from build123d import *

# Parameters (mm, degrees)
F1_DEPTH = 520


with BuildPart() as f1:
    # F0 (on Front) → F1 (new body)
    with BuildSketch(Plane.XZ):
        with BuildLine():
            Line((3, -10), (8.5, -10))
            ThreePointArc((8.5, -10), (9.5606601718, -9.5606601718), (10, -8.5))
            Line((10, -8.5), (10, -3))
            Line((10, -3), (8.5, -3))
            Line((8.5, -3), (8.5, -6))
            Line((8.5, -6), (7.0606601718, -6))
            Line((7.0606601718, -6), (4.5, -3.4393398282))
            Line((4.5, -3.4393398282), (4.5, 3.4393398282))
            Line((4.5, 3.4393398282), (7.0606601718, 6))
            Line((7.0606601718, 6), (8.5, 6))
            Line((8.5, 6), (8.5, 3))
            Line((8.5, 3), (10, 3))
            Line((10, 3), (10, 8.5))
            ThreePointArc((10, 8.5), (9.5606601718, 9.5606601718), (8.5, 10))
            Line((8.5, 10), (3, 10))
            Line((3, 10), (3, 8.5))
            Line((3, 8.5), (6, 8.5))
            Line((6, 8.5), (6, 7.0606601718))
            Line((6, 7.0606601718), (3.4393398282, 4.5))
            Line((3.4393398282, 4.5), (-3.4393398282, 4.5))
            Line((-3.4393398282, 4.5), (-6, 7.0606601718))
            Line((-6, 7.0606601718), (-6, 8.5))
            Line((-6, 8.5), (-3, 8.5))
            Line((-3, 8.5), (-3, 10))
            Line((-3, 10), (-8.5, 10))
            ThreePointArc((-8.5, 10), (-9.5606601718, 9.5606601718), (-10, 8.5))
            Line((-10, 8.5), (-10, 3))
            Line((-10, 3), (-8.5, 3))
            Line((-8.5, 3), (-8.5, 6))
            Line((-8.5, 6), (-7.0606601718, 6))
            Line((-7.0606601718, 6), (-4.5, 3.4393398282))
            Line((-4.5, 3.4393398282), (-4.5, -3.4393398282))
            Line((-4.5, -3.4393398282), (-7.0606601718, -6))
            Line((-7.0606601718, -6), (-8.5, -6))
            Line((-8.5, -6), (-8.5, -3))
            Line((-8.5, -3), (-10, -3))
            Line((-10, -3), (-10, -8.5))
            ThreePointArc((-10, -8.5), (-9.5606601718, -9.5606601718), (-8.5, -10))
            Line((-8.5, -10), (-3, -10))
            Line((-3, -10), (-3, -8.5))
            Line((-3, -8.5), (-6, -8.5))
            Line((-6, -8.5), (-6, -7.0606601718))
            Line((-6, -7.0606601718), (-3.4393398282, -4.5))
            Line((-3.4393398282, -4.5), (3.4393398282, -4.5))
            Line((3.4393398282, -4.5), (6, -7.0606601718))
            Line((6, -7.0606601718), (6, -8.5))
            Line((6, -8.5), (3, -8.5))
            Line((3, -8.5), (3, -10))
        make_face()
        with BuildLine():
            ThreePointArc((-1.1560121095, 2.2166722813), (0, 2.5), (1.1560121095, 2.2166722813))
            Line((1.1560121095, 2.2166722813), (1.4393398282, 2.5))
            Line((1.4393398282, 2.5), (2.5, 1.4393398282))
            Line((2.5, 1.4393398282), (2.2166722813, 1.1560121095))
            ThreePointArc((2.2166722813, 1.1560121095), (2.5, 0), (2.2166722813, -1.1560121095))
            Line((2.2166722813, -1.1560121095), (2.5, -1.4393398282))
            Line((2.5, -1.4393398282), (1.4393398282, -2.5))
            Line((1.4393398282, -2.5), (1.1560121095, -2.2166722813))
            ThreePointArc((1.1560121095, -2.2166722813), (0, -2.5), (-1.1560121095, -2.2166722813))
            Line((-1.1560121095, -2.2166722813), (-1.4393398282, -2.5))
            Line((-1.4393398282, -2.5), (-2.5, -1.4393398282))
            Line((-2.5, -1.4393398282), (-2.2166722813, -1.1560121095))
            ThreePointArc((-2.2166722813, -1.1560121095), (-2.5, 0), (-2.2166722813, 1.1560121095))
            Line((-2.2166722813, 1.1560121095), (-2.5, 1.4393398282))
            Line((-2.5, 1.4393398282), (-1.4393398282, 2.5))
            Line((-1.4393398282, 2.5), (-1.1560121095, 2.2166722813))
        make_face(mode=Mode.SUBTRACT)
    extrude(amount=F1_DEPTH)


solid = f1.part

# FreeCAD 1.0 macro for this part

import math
import FreeCAD as App
import Part
import Sketcher

V = App.Vector
Q = App.Units.Quantity

doc = App.newDocument("Part")
body = doc.addObject("PartDesign::Body", "Body")

sketch1 = body.newObject("Sketcher::SketchObject", "Sketch")
sketch1.AttachmentSupport = (doc.getObject("XZ_Plane"), [""])
sketch1.MapMode = "FlatFace"
sketch1.addGeometry(Part.LineSegment(V(3, -10, 0), V(8.5, -10, 0)), False)
sketch1.addGeometry(Part.ArcOfCircle(Part.Circle(V(8.5, -8.5, 0), V(0, 0, 1), 1.5), math.radians(-90), math.radians(0)), False)
sketch1.addGeometry(Part.LineSegment(V(10, -8.5, 0), V(10, -3, 0)), False)
sketch1.addGeometry(Part.LineSegment(V(10, -3, 0), V(8.5, -3, 0)), False)
sketch1.addGeometry(Part.LineSegment(V(8.5, -3, 0), V(8.5, -6, 0)), False)
sketch1.addGeometry(Part.LineSegment(V(8.5, -6, 0), V(7.06, -6, 0)), False)
sketch1.addGeometry(Part.LineSegment(V(7.06, -6, 0), V(4.5, -3.44, 0)), False)
sketch1.addGeometry(Part.LineSegment(V(4.5, -3.44, 0), V(4.5, 3.44, 0)), False)
sketch1.addGeometry(Part.LineSegment(V(4.5, 3.44, 0), V(7.06, 6, 0)), False)
sketch1.addGeometry(Part.LineSegment(V(7.06, 6, 0), V(8.5, 6, 0)), False)
sketch1.addGeometry(Part.LineSegment(V(8.5, 6, 0), V(8.5, 3, 0)), False)
sketch1.addGeometry(Part.LineSegment(V(8.5, 3, 0), V(10, 3, 0)), False)
sketch1.addGeometry(Part.LineSegment(V(10, 3, 0), V(10, 8.5, 0)), False)
sketch1.addGeometry(Part.ArcOfCircle(Part.Circle(V(8.5, 8.5, 0), V(0, 0, 1), 1.5), math.radians(0), math.radians(90)), False)
sketch1.addGeometry(Part.LineSegment(V(8.5, 10, 0), V(3, 10, 0)), False)
sketch1.addGeometry(Part.LineSegment(V(3, 10, 0), V(3, 8.5, 0)), False)
sketch1.addGeometry(Part.LineSegment(V(3, 8.5, 0), V(6, 8.5, 0)), False)
sketch1.addGeometry(Part.LineSegment(V(6, 8.5, 0), V(6, 7.06, 0)), False)
sketch1.addGeometry(Part.LineSegment(V(6, 7.06, 0), V(3.44, 4.5, 0)), False)
sketch1.addGeometry(Part.LineSegment(V(3.44, 4.5, 0), V(-3.44, 4.5, 0)), False)
sketch1.addGeometry(Part.LineSegment(V(-3.44, 4.5, 0), V(-6, 7.06, 0)), False)
sketch1.addGeometry(Part.LineSegment(V(-6, 7.06, 0), V(-6, 8.5, 0)), False)
sketch1.addGeometry(Part.LineSegment(V(-6, 8.5, 0), V(-3, 8.5, 0)), False)
sketch1.addGeometry(Part.LineSegment(V(-3, 8.5, 0), V(-3, 10, 0)), False)
sketch1.addGeometry(Part.LineSegment(V(-3, 10, 0), V(-8.5, 10, 0)), False)
sketch1.addGeometry(Part.ArcOfCircle(Part.Circle(V(-8.5, 8.5, 0), V(0, 0, 1), 1.5), math.radians(90), math.radians(180)), False)
sketch1.addGeometry(Part.LineSegment(V(-10, 8.5, 0), V(-10, 3, 0)), False)
sketch1.addGeometry(Part.LineSegment(V(-10, 3, 0), V(-8.5, 3, 0)), False)
sketch1.addGeometry(Part.LineSegment(V(-8.5, 3, 0), V(-8.5, 6, 0)), False)
sketch1.addGeometry(Part.LineSegment(V(-8.5, 6, 0), V(-7.06, 6, 0)), False)
sketch1.addGeometry(Part.LineSegment(V(-7.06, 6, 0), V(-4.5, 3.44, 0)), False)
sketch1.addGeometry(Part.LineSegment(V(-4.5, 3.44, 0), V(-4.5, -3.44, 0)), False)
sketch1.addGeometry(Part.LineSegment(V(-4.5, -3.44, 0), V(-7.06, -6, 0)), False)
sketch1.addGeometry(Part.LineSegment(V(-7.06, -6, 0), V(-8.5, -6, 0)), False)
sketch1.addGeometry(Part.LineSegment(V(-8.5, -6, 0), V(-8.5, -3, 0)), False)
sketch1.addGeometry(Part.LineSegment(V(-8.5, -3, 0), V(-10, -3, 0)), False)
sketch1.addGeometry(Part.LineSegment(V(-10, -3, 0), V(-10, -8.5, 0)), False)
sketch1.addGeometry(Part.ArcOfCircle(Part.Circle(V(-8.5, -8.5, 0), V(0, 0, 1), 1.5), math.radians(180), math.radians(270)), False)
sketch1.addGeometry(Part.LineSegment(V(-8.5, -10, 0), V(-3, -10, 0)), False)
sketch1.addGeometry(Part.LineSegment(V(-3, -10, 0), V(-3, -8.5, 0)), False)
sketch1.addGeometry(Part.LineSegment(V(-3, -8.5, 0), V(-6, -8.5, 0)), False)
sketch1.addGeometry(Part.LineSegment(V(-6, -8.5, 0), V(-6, -7.06, 0)), False)
sketch1.addGeometry(Part.LineSegment(V(-6, -7.06, 0), V(-3.44, -4.5, 0)), False)
sketch1.addGeometry(Part.LineSegment(V(-3.44, -4.5, 0), V(3.44, -4.5, 0)), False)
sketch1.addGeometry(Part.LineSegment(V(3.44, -4.5, 0), V(6, -7.06, 0)), False)
sketch1.addGeometry(Part.LineSegment(V(6, -7.06, 0), V(6, -8.5, 0)), False)
sketch1.addGeometry(Part.LineSegment(V(6, -8.5, 0), V(3, -8.5, 0)), False)
sketch1.addGeometry(Part.LineSegment(V(3, -8.5, 0), V(3, -10, 0)), False)
sketch1.addGeometry(Part.LineSegment(V(-1.44, 2.5, 0), V(-1.16, 2.22, 0)), False)
sketch1.addGeometry(Part.ArcOfCircle(Part.Circle(V(0, 0, 0), V(0, 0, 1), 2.5), math.radians(62), math.radians(118)), False)
sketch1.addGeometry(Part.LineSegment(V(1.16, 2.22, 0), V(1.44, 2.5, 0)), False)
sketch1.addGeometry(Part.LineSegment(V(1.44, 2.5, 0), V(2.5, 1.44, 0)), False)
sketch1.addGeometry(Part.LineSegment(V(2.5, 1.44, 0), V(2.22, 1.16, 0)), False)
sketch1.addGeometry(Part.ArcOfCircle(Part.Circle(V(0, 0, 0), V(0, 0, 1), 2.5), math.radians(-28), math.radians(28)), False)
sketch1.addGeometry(Part.LineSegment(V(2.22, -1.16, 0), V(2.5, -1.44, 0)), False)
sketch1.addGeometry(Part.LineSegment(V(2.5, -1.44, 0), V(1.44, -2.5, 0)), False)
sketch1.addGeometry(Part.LineSegment(V(1.44, -2.5, 0), V(1.16, -2.22, 0)), False)
sketch1.addGeometry(Part.ArcOfCircle(Part.Circle(V(0, 0, 0), V(0, 0, 1), 2.5), math.radians(-118), math.radians(-62)), False)
sketch1.addGeometry(Part.LineSegment(V(-1.16, -2.22, 0), V(-1.44, -2.5, 0)), False)
sketch1.addGeometry(Part.LineSegment(V(-1.44, -2.5, 0), V(-2.5, -1.44, 0)), False)
sketch1.addGeometry(Part.LineSegment(V(-2.5, -1.44, 0), V(-2.22, -1.16, 0)), False)
sketch1.addGeometry(Part.ArcOfCircle(Part.Circle(V(0, 0, 0), V(0, 0, 1), 2.5), math.radians(152), math.radians(208)), False)
sketch1.addGeometry(Part.LineSegment(V(-2.22, 1.16, 0), V(-2.5, 1.44, 0)), False)
sketch1.addGeometry(Part.LineSegment(V(-2.5, 1.44, 0), V(-1.44, 2.5, 0)), False)
sketch1.addConstraint(Sketcher.Constraint("Tangent", 0, 2, 1, 1))
sketch1.addConstraint(Sketcher.Constraint("Tangent", 1, 2, 2, 1))
sketch1.addConstraint(Sketcher.Constraint("Coincident", 2, 2, 3, 1))
sketch1.addConstraint(Sketcher.Constraint("Coincident", 3, 2, 4, 1))
sketch1.addConstraint(Sketcher.Constraint("Coincident", 4, 2, 5, 1))
sketch1.addConstraint(Sketcher.Constraint("Coincident", 5, 2, 6, 1))
sketch1.addConstraint(Sketcher.Constraint("Coincident", 6, 2, 7, 1))
sketch1.addConstraint(Sketcher.Constraint("Coincident", 7, 2, 8, 1))
sketch1.addConstraint(Sketcher.Constraint("Coincident", 8, 2, 9, 1))
sketch1.addConstraint(Sketcher.Constraint("Coincident", 9, 2, 10, 1))
sketch1.addConstraint(Sketcher.Constraint("Coincident", 10, 2, 11, 1))
sketch1.addConstraint(Sketcher.Constraint("Coincident", 11, 2, 12, 1))
sketch1.addConstraint(Sketcher.Constraint("Tangent", 12, 2, 13, 1))
sketch1.addConstraint(Sketcher.Constraint("Tangent", 13, 2, 14, 1))
sketch1.addConstraint(Sketcher.Constraint("Coincident", 14, 2, 15, 1))
sketch1.addConstraint(Sketcher.Constraint("Coincident", 15, 2, 16, 1))
sketch1.addConstraint(Sketcher.Constraint("Coincident", 16, 2, 17, 1))
sketch1.addConstraint(Sketcher.Constraint("Coincident", 17, 2, 18, 1))
sketch1.addConstraint(Sketcher.Constraint("Coincident", 18, 2, 19, 1))
sketch1.addConstraint(Sketcher.Constraint("Coincident", 19, 2, 20, 1))
sketch1.addConstraint(Sketcher.Constraint("Coincident", 20, 2, 21, 1))
sketch1.addConstraint(Sketcher.Constraint("Coincident", 21, 2, 22, 1))
sketch1.addConstraint(Sketcher.Constraint("Coincident", 22, 2, 23, 1))
sketch1.addConstraint(Sketcher.Constraint("Coincident", 23, 2, 24, 1))
sketch1.addConstraint(Sketcher.Constraint("Tangent", 24, 2, 25, 1))
sketch1.addConstraint(Sketcher.Constraint("Tangent", 25, 2, 26, 1))
sketch1.addConstraint(Sketcher.Constraint("Coincident", 26, 2, 27, 1))
sketch1.addConstraint(Sketcher.Constraint("Coincident", 27, 2, 28, 1))
sketch1.addConstraint(Sketcher.Constraint("Coincident", 28, 2, 29, 1))
sketch1.addConstraint(Sketcher.Constraint("Coincident", 29, 2, 30, 1))
sketch1.addConstraint(Sketcher.Constraint("Coincident", 30, 2, 31, 1))
sketch1.addConstraint(Sketcher.Constraint("Coincident", 31, 2, 32, 1))
sketch1.addConstraint(Sketcher.Constraint("Coincident", 32, 2, 33, 1))
sketch1.addConstraint(Sketcher.Constraint("Coincident", 33, 2, 34, 1))
sketch1.addConstraint(Sketcher.Constraint("Coincident", 34, 2, 35, 1))
sketch1.addConstraint(Sketcher.Constraint("Coincident", 35, 2, 36, 1))
sketch1.addConstraint(Sketcher.Constraint("Tangent", 36, 2, 37, 1))
sketch1.addConstraint(Sketcher.Constraint("Tangent", 37, 2, 38, 1))
sketch1.addConstraint(Sketcher.Constraint("Coincident", 38, 2, 39, 1))
sketch1.addConstraint(Sketcher.Constraint("Coincident", 39, 2, 40, 1))
sketch1.addConstraint(Sketcher.Constraint("Coincident", 40, 2, 41, 1))
sketch1.addConstraint(Sketcher.Constraint("Coincident", 41, 2, 42, 1))
sketch1.addConstraint(Sketcher.Constraint("Coincident", 42, 2, 43, 1))
sketch1.addConstraint(Sketcher.Constraint("Coincident", 43, 2, 44, 1))
sketch1.addConstraint(Sketcher.Constraint("Coincident", 44, 2, 45, 1))
sketch1.addConstraint(Sketcher.Constraint("Coincident", 45, 2, 46, 1))
sketch1.addConstraint(Sketcher.Constraint("Coincident", 46, 2, 47, 1))
sketch1.addConstraint(Sketcher.Constraint("Coincident", 47, 2, 0, 1))
sketch1.addConstraint(Sketcher.Constraint("Coincident", 48, 2, 49, 2))
sketch1.addConstraint(Sketcher.Constraint("Coincident", 49, 1, 50, 1))
sketch1.addConstraint(Sketcher.Constraint("Coincident", 50, 2, 51, 1))
sketch1.addConstraint(Sketcher.Constraint("Coincident", 51, 2, 52, 1))
sketch1.addConstraint(Sketcher.Constraint("Coincident", 52, 2, 53, 2))
sketch1.addConstraint(Sketcher.Constraint("Coincident", 53, 1, 54, 1))
sketch1.addConstraint(Sketcher.Constraint("Coincident", 54, 2, 55, 1))
sketch1.addConstraint(Sketcher.Constraint("Coincident", 55, 2, 56, 1))
sketch1.addConstraint(Sketcher.Constraint("Coincident", 56, 2, 57, 2))
sketch1.addConstraint(Sketcher.Constraint("Coincident", 57, 1, 58, 1))
sketch1.addConstraint(Sketcher.Constraint("Coincident", 58, 2, 59, 1))
sketch1.addConstraint(Sketcher.Constraint("Coincident", 59, 2, 60, 1))
sketch1.addConstraint(Sketcher.Constraint("Coincident", 60, 2, 61, 2))
sketch1.addConstraint(Sketcher.Constraint("Coincident", 61, 1, 62, 1))
sketch1.addConstraint(Sketcher.Constraint("Coincident", 62, 2, 63, 1))
sketch1.addConstraint(Sketcher.Constraint("Coincident", 63, 2, 48, 1))
sketch1.addConstraint(Sketcher.Constraint("Horizontal", 0))
sketch1.addConstraint(Sketcher.Constraint("Vertical", 2))
sketch1.addConstraint(Sketcher.Constraint("Horizontal", 3))
sketch1.addConstraint(Sketcher.Constraint("Vertical", 4))
sketch1.addConstraint(Sketcher.Constraint("Horizontal", 5))
sketch1.addConstraint(Sketcher.Constraint("Vertical", 7))
sketch1.addConstraint(Sketcher.Constraint("Horizontal", 9))
sketch1.addConstraint(Sketcher.Constraint("Vertical", 10))
sketch1.addConstraint(Sketcher.Constraint("Horizontal", 11))
sketch1.addConstraint(Sketcher.Constraint("Vertical", 12))
sketch1.addConstraint(Sketcher.Constraint("Horizontal", 14))
sketch1.addConstraint(Sketcher.Constraint("Vertical", 15))
sketch1.addConstraint(Sketcher.Constraint("Horizontal", 16))
sketch1.addConstraint(Sketcher.Constraint("Vertical", 17))
sketch1.addConstraint(Sketcher.Constraint("Horizontal", 19))
sketch1.addConstraint(Sketcher.Constraint("Vertical", 21))
sketch1.addConstraint(Sketcher.Constraint("Horizontal", 22))
sketch1.addConstraint(Sketcher.Constraint("Vertical", 23))
sketch1.addConstraint(Sketcher.Constraint("Horizontal", 24))
sketch1.addConstraint(Sketcher.Constraint("Vertical", 26))
sketch1.addConstraint(Sketcher.Constraint("Horizontal", 27))
sketch1.addConstraint(Sketcher.Constraint("Vertical", 28))
sketch1.addConstraint(Sketcher.Constraint("Horizontal", 29))
sketch1.addConstraint(Sketcher.Constraint("Vertical", 31))
sketch1.addConstraint(Sketcher.Constraint("Horizontal", 33))
sketch1.addConstraint(Sketcher.Constraint("Vertical", 34))
sketch1.addConstraint(Sketcher.Constraint("Horizontal", 35))
sketch1.addConstraint(Sketcher.Constraint("Vertical", 36))
sketch1.addConstraint(Sketcher.Constraint("Horizontal", 38))
sketch1.addConstraint(Sketcher.Constraint("Vertical", 39))
sketch1.addConstraint(Sketcher.Constraint("Horizontal", 40))
sketch1.addConstraint(Sketcher.Constraint("Vertical", 41))
sketch1.addConstraint(Sketcher.Constraint("Horizontal", 43))
sketch1.addConstraint(Sketcher.Constraint("Vertical", 45))
sketch1.addConstraint(Sketcher.Constraint("Horizontal", 46))
sketch1.addConstraint(Sketcher.Constraint("Vertical", 47))
sketch1.addConstraint(Sketcher.Constraint("Coincident", 49, 3, -1, 1))
sketch1.addConstraint(Sketcher.Constraint("Coincident", 53, 3, -1, 1))
sketch1.addConstraint(Sketcher.Constraint("Coincident", 57, 3, -1, 1))
sketch1.addConstraint(Sketcher.Constraint("Coincident", 61, 3, -1, 1))
sketch1.addConstraint(Sketcher.Constraint("Equal", 1, 13))
sketch1.addConstraint(Sketcher.Constraint("Equal", 13, 25))
sketch1.addConstraint(Sketcher.Constraint("Equal", 25, 37))
sketch1.addConstraint(Sketcher.Constraint("Equal", 49, 53))
sketch1.addConstraint(Sketcher.Constraint("Equal", 53, 57))
sketch1.addConstraint(Sketcher.Constraint("Equal", 57, 61))
sketch1.addConstraint(Sketcher.Constraint("Symmetric", 1, 3, 25, 3, -1, 1))
sketch1.addConstraint(Sketcher.Constraint("Symmetric", 13, 3, 37, 3, -1, 1))
sketch1.addConstraint(Sketcher.Constraint("Symmetric", 3, 2, 27, 2, -1, 1))
sketch1.addConstraint(Sketcher.Constraint("Symmetric", 5, 2, 29, 2, -1, 1))
sketch1.addConstraint(Sketcher.Constraint("Symmetric", 6, 2, 30, 2, -1, 1))
sketch1.addConstraint(Sketcher.Constraint("Symmetric", 8, 2, 32, 2, -1, 1))
sketch1.addConstraint(Sketcher.Constraint("Symmetric", 10, 2, 34, 2, -1, 1))
sketch1.addConstraint(Sketcher.Constraint("Symmetric", 15, 2, 39, 2, -1, 1))
sketch1.addConstraint(Sketcher.Constraint("Symmetric", 17, 2, 41, 2, -1, 1))
sketch1.addConstraint(Sketcher.Constraint("Symmetric", 18, 2, 42, 2, -1, 1))
sketch1.addConstraint(Sketcher.Constraint("Symmetric", 20, 2, 44, 2, -1, 1))
sketch1.addConstraint(Sketcher.Constraint("Symmetric", 22, 2, 46, 2, -1, 1))
sketch1.addConstraint(Sketcher.Constraint("Symmetric", 50, 2, 58, 2, -1, 1))
sketch1.addConstraint(Sketcher.Constraint("Symmetric", 51, 2, 59, 2, -1, 1))
sketch1.addConstraint(Sketcher.Constraint("Symmetric", 54, 2, 62, 2, -1, 1))
sketch1.addConstraint(Sketcher.Constraint("Symmetric", 55, 2, 63, 2, -1, 1))
sketch1.addConstraint(Sketcher.Constraint("Symmetric", 13, 3, 25, 3, -2))
sketch1.addConstraint(Sketcher.Constraint("Symmetric", 17, 2, 20, 2, -2))
sketch1.addConstraint(Sketcher.Constraint("Symmetric", 15, 2, 22, 2, -2))
sketch1.addConstraint(Sketcher.Constraint("Symmetric", 10, 2, 27, 2, -2))
sketch1.addConstraint(Sketcher.Constraint("Symmetric", 8, 2, 29, 2, -2))
sketch1.addConstraint(Sketcher.Constraint("Symmetric", 55, 2, 58, 2, -2))
sketch1.addConstraint(Sketcher.Constraint("Symmetric", 54, 2, 59, 2, -2))
sketch1.addConstraint(Sketcher.Constraint("Perpendicular", 6, 8))
sketch1.addConstraint(Sketcher.Constraint("Parallel", 8, 18))
sketch1.addConstraint(Sketcher.Constraint("Perpendicular", 18, 20))
sketch1.addConstraint(Sketcher.Constraint("Perpendicular", 30, 32))
sketch1.addConstraint(Sketcher.Constraint("Perpendicular", 42, 44))
sketch1.addConstraint(Sketcher.Constraint("Parallel", 44, 48))
sketch1.addConstraint(Sketcher.Constraint("Perpendicular", 48, 50))
sketch1.addConstraint(Sketcher.Constraint("Perpendicular", 50, 51))
sketch1.addConstraint(Sketcher.Constraint("Perpendicular", 51, 52))
sketch1.addConstraint(Sketcher.Constraint("Perpendicular", 52, 54))
sketch1.addConstraint(Sketcher.Constraint("Perpendicular", 54, 55))
sketch1.addConstraint(Sketcher.Constraint("Perpendicular", 55, 56))
sketch1.addConstraint(Sketcher.Constraint("Perpendicular", 56, 58))
sketch1.addConstraint(Sketcher.Constraint("Perpendicular", 59, 60))
sketch1.addConstraint(Sketcher.Constraint("Perpendicular", 60, 62))
sketch1.addConstraint(Sketcher.Constraint("Horizontal", 12, 2, 15, 2))
sketch1.addConstraint(Sketcher.Constraint("Vertical", 0, 2, 3, 2))
sketch1.addConstraint(Sketcher.Constraint("Equal", 38, 2))
sketch1.addConstraint(Sketcher.Constraint("Equal", 46, 4))
sketch1.addConstraint(Sketcher.Constraint("Equal", 43, 7))
sketch1.addConstraint(Sketcher.Constraint("Equal", 33, 17))
sketch1.addConstraint(Sketcher.Constraint("Equal", 8, 18))
sketch1.addConstraint(Sketcher.Constraint("Equal", 50, 52))
sketch1.addConstraint(Sketcher.Constraint("Radius", 1, Q("1.5 mm")))
sketch1.addConstraint(Sketcher.Constraint("Radius", 49, Q("2.5 mm")))
sketch1.addConstraint(Sketcher.Constraint("DistanceX", 16, 1, 16, 2, Q("3 mm")))
sketch1.addConstraint(Sketcher.Constraint("DistanceX", 0, 1, 0, 2, Q("5.5 mm")))
sketch1.addConstraint(Sketcher.Constraint("DistanceY", 0, 2, -1, 1, Q("10 mm")))
sketch1.addConstraint(Sketcher.Constraint("Distance", 51, Q("1.5 mm")))
sketch1.addConstraint(Sketcher.Constraint("DistanceX", -1, 1, 6, 2, Q("4.5 mm")))
sketch1.addConstraint(Sketcher.Constraint("DistanceY", -1, 1, 50, 2, Q("2.5 mm")))
sketch1.addConstraint(Sketcher.Constraint("DistanceX", 5, 2, 5, 1, Q("1.43934 mm")))
pad1 = body.newObject("PartDesign::Pad", "Pad")
pad1.Profile = sketch1
pad1.Length = 520

doc.recompute()
